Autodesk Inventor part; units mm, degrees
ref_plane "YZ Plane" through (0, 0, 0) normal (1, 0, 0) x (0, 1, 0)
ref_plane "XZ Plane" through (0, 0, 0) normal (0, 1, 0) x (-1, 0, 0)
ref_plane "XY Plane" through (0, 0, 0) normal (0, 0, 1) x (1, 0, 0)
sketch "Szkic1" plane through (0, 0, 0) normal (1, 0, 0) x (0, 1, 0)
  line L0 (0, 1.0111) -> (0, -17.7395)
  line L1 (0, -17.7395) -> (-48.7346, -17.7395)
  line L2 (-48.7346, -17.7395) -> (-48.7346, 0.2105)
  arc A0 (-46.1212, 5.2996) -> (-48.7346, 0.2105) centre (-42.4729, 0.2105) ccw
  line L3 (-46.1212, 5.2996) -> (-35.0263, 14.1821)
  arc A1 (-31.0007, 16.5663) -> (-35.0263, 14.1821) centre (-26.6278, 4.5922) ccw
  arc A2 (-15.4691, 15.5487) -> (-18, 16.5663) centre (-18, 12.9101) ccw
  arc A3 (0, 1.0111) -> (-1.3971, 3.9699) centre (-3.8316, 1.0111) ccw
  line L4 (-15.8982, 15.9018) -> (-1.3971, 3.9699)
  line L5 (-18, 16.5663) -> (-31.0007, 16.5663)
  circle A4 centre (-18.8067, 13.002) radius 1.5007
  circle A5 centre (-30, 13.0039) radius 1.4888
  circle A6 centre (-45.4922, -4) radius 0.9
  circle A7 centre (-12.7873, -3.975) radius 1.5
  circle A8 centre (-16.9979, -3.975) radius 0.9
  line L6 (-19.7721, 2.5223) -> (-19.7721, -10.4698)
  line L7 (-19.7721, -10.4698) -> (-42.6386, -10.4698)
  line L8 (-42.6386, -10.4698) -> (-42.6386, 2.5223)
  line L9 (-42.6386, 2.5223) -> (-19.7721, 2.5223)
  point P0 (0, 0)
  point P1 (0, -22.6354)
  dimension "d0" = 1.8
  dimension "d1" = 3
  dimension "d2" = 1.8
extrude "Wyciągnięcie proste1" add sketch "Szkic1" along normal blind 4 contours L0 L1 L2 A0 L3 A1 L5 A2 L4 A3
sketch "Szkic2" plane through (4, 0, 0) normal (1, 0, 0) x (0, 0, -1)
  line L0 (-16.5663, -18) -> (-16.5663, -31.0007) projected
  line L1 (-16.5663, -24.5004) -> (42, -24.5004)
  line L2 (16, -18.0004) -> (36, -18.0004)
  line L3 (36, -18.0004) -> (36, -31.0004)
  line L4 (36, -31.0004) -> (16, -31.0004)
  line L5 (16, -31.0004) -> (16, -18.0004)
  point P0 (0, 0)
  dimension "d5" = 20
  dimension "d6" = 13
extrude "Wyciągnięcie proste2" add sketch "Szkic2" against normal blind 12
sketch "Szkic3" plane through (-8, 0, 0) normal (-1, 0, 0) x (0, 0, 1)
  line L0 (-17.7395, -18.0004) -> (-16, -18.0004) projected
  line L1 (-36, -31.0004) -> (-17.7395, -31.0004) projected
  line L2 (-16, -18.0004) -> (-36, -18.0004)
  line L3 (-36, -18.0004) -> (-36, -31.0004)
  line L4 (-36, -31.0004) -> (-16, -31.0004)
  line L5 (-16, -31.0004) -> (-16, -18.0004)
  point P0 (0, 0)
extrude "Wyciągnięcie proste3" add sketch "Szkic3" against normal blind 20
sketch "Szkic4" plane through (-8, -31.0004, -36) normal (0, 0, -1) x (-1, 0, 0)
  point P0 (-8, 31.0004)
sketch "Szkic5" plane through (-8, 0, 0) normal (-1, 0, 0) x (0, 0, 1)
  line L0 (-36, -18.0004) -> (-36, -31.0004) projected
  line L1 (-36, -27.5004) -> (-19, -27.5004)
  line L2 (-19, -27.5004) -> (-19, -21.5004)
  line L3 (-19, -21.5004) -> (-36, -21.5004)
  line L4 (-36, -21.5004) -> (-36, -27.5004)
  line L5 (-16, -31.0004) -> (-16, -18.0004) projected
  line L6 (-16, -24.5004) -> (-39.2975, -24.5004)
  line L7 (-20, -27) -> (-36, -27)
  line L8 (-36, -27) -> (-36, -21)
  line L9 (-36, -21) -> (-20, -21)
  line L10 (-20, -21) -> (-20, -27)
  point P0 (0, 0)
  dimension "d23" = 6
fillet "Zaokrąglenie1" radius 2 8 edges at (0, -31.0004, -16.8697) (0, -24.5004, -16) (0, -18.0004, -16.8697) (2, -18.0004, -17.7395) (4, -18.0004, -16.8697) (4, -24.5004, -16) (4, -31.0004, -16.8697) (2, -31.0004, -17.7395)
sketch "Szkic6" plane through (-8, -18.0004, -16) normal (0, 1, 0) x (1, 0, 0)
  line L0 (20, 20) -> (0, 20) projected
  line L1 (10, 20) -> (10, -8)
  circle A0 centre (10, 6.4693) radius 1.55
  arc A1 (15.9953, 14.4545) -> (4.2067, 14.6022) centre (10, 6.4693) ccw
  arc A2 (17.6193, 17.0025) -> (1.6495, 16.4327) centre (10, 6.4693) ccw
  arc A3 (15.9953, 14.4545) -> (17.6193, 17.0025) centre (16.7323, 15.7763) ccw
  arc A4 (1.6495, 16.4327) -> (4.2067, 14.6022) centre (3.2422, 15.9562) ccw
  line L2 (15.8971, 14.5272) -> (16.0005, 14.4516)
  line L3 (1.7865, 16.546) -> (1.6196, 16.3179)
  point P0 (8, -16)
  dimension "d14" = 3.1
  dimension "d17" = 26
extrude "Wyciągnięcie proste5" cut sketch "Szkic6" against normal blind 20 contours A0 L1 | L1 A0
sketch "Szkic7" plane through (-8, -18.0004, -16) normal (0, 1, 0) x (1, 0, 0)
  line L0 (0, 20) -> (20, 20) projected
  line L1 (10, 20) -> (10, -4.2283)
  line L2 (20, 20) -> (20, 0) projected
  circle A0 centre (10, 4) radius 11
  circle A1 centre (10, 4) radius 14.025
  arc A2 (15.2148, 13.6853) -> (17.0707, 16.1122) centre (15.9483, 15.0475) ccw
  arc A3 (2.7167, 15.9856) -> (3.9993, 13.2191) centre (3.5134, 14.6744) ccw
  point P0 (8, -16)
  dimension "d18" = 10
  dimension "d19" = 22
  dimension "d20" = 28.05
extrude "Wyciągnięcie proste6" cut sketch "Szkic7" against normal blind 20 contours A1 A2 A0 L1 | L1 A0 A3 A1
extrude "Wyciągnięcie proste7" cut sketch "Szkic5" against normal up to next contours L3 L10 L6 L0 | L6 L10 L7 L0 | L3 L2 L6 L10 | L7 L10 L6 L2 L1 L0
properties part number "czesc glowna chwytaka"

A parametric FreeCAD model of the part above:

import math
import FreeCAD as App
import Part
import Sketcher

V = App.Vector
Q = App.Units.Quantity


def edges_at(feature, points):
    """Names of the edges that pass closest to the given points."""
    edges = feature.Shape.Edges
    near = lambda p: min(range(len(edges)), key=lambda i: edges[i].distToShape(Part.Vertex(*p))[0])
    return sorted({f"Edge{near(p) + 1}" for p in points})


def add_polygon(sketch, points):
    """Adds a closed chain of lines whose ends are joined by coincident constraints."""
    first, n = sketch.GeometryCount, len(points)
    for a, b in zip(points, points[1:] + points[:1]):
        sketch.addGeometry(Part.LineSegment(App.Vector(*a, 0), App.Vector(*b, 0)), False)
    for i in range(n):
        sketch.addConstraint(Sketcher.Constraint("Coincident", first + i, 2, first + (i + 1) % n, 1))

doc = App.newDocument("Part")
params = doc.addObject("Spreadsheet::Sheet", "Params")
for row, (alias, value) in enumerate([
    ("sketch1_diameter", "3 mm"),
    ("sketch1_diameter2", "1.8 mm"),
    ("sketch1_height", "17.95 mm"),
    ("sketch1_height2", "9.59 mm"),
    ("pad1_length", "4 mm"),
    ("sketch2_width", "13 mm"),
    ("sketch2_height", "20 mm"),
    ("pad2_length", "12 mm"),
    ("sketch3_width", "13 mm"),
    ("sketch3_height", "20 mm"),
    ("pad3_length", "20 mm"),
    ("fillet_radius", "2 mm"),
    ("sketch4_diameter", "3.1 mm"),
    ("pocket1_length", "20 mm"),
    ("sketch5_radius", "11 mm"),
    ("pocket2_length", "20 mm"),
    ("sketch6_width", "6 mm"),
    ("sketch6_height", "17 mm"),
], start=1):
    params.set(f"A{row}", alias)
    params.set(f"B{row}", "=" + value)
    params.setAlias(f"B{row}", alias)

body = doc.addObject("PartDesign::Body", "Body")

# Sketch on YZ plane
sketch1 = body.newObject("Sketcher::SketchObject", "Sketch")
sketch1.AttachmentSupport = (doc.getObject("YZ_Plane"), [""])
sketch1.MapMode = "FlatFace"
sketch1.addGeometry(Part.LineSegment(V(0, -17.7395, 0), V(0, 1.0111, 0)), False)  # 0
sketch1.addGeometry(Part.ArcOfCircle(Part.Circle(V(-3.8316, 1.0111, 0), V(0, 0, 1), 3.8316), math.radians(0), math.radians(50.552459)), False)  # 1
sketch1.addGeometry(Part.LineSegment(V(-1.3971, 3.9699, 0), V(-15.8982, 15.9018, 0)), False)  # 2
sketch1.addGeometry(Part.ArcOfCircle(Part.Circle(V(-18, 12.9101, 0), V(0, 0, 1), 3.656182), math.radians(54.910282), math.radians(90)), False)  # 3
sketch1.addGeometry(Part.LineSegment(V(-18, 16.5663, 0), V(-31.0007, 16.5663, 0)), False)  # 4
sketch1.addGeometry(Part.ArcOfCircle(Part.Circle(V(-26.6278, 4.5922, 0), V(0, 0, 1), 12.747601), math.radians(110.062019), math.radians(131.210745)), False)  # 5
sketch1.addGeometry(Part.LineSegment(V(-35.0263, 14.1821, 0), V(-46.1212, 5.2996, 0)), False)  # 6
sketch1.addGeometry(Part.ArcOfCircle(Part.Circle(V(-42.4729, 0.2105, 0), V(0, 0, 1), 6.261712), math.radians(125.636175), math.radians(180)), False)  # 7
sketch1.addGeometry(Part.LineSegment(V(-48.7346, 0.2105, 0), V(-48.7346, -17.7395, 0)), False)  # 8
sketch1.addGeometry(Part.LineSegment(V(-48.7346, -17.7395, 0), V(0, -17.7395, 0)), False)  # 9
sketch1.addGeometry(Part.Circle(V(-45.4922, -4, 0), V(0, 0, 1), 0.9), False)  # 10
add_polygon(sketch1, [(-42.6386, 2.5223), (-19.7721, 2.5223), (-19.7721, -10.4698), (-42.6386, -10.4698)])  # lines 11-14
sketch1.addGeometry(Part.Circle(V(-16.9979, -3.975, 0), V(0, 0, 1), 0.9), False)  # 15
sketch1.addGeometry(Part.Circle(V(-12.7873, -3.975, 0), V(0, 0, 1), 1.5), False)  # 16
sketch1.addGeometry(Part.Circle(V(-30, 13.0039, 0), V(0, 0, 1), 1.4888), False)  # 17
sketch1.addGeometry(Part.Circle(V(-18.8067, 13.002, 0), V(0, 0, 1), 1.5007), False)  # 18
sketch1.addConstraint([
    Sketcher.Constraint("Tangent", 0, 2, 1, 1),
    Sketcher.Constraint("Tangent", 1, 2, 2, 1),
    Sketcher.Constraint("Coincident", 2, 2, 3, 1),
    Sketcher.Constraint("Tangent", 3, 2, 4, 1),
    Sketcher.Constraint("Coincident", 4, 2, 5, 1),
    Sketcher.Constraint("Coincident", 5, 2, 6, 1),
    Sketcher.Constraint("Coincident", 6, 2, 7, 1),
    Sketcher.Constraint("Tangent", 7, 2, 8, 1),
    Sketcher.Constraint("Coincident", 8, 2, 9, 1),
    Sketcher.Constraint("Coincident", 9, 2, 0, 1),
    Sketcher.Constraint("Vertical", 0),
    Sketcher.Constraint("Horizontal", 4),
    Sketcher.Constraint("Vertical", 8),
    Sketcher.Constraint("Horizontal", 9),
    Sketcher.Constraint("Horizontal", 11),
    Sketcher.Constraint("Vertical", 12),
    Sketcher.Constraint("Horizontal", 13),
    Sketcher.Constraint("Vertical", 14),
    Sketcher.Constraint("Equal", 10, 15),
    Sketcher.Constraint("PointOnObject", 0, 2, -2),
    Sketcher.Constraint("Horizontal", 15, 3, 16, 3),
    Sketcher.Constraint("Diameter", 16, Q("3 mm")),
    Sketcher.Constraint("Diameter", 10, Q("1.8 mm")),
    Sketcher.Constraint("DistanceX", 3, 3, -1, 1, Q("18 mm")),
    Sketcher.Constraint("DistanceY", 10, 3, -1, 1, Q("4 mm")),
    Sketcher.Constraint("DistanceX", 17, 3, -1, 1, Q("30 mm")),
    Sketcher.Constraint("Diameter", 17, Q("2.9776 mm")),
    Sketcher.Constraint("Diameter", 18, Q("3.0014 mm")),
    Sketcher.Constraint("DistanceY", 8, 2, 8, 1, Q("17.95 mm")),
    Sketcher.Constraint("Angle", 6, Q("-141.3195 deg")),
    Sketcher.Constraint("Radius", 1, Q("3.8316 mm")),
    Sketcher.Constraint("Radius", 3, Q("3.6562 mm")),
    Sketcher.Constraint("Radius", 5, Q("12.7476 mm")),
    Sketcher.Constraint("Radius", 7, Q("6.2617 mm")),
    Sketcher.Constraint("DistanceY", 12, 2, 12, 1, Q("12.992 mm")),
    Sketcher.Constraint("DistanceY", -1, 1, 3, 3, Q("12.91 mm")),
    Sketcher.Constraint("DistanceY", -1, 1, 1, 2, Q("3.97 mm")),
    Sketcher.Constraint("DistanceX", 5, 3, 15, 3, Q("9.63 mm")),
    Sketcher.Constraint("DistanceY", 5, 3, 5, 2, Q("9.59 mm")),
    Sketcher.Constraint("DistanceY", 18, 3, 5, 2, Q("1.18 mm")),
    Sketcher.Constraint("DistanceY", 11, 2, 5, 3, Q("2.07 mm")),
    Sketcher.Constraint("Distance", 2, Q("18.779 mm")),
    Sketcher.Constraint("DistanceX", 4, 2, 4, 1, Q("13.0007 mm")),
    Sketcher.Constraint("DistanceX", 9, 1, 9, 2, Q("48.7346 mm")),
    Sketcher.Constraint("DistanceX", 11, 1, 11, 2, Q("22.8665 mm")),
    Sketcher.Constraint("DistanceY", 0, 1, 0, 2, Q("18.7506 mm")),
    Sketcher.Constraint("DistanceX", 15, 3, -1, 1, Q("16.998 mm")),
    Sketcher.Constraint("DistanceY", 15, 3, -1, 1, Q("3.975 mm")),
    Sketcher.Constraint("DistanceY", -1, 1, 17, 3, Q("13.004 mm")),
    Sketcher.Constraint("DistanceX", 11, 2, -1, 1, Q("19.772 mm")),
    Sketcher.Constraint("DistanceX", 5, 3, 18, 3, Q("7.821 mm")),
    Sketcher.Constraint("DistanceX", 6, 2, 10, 3, Q("0.629 mm")),
    Sketcher.Constraint("DistanceX", 16, 3, -1, 1, Q("12.7873 mm")),
])
sketch1.setExpression("Constraints[25]", "Params.sketch1_diameter")
sketch1.setExpression("Constraints[26]", "Params.sketch1_diameter2")
sketch1.setExpression("Constraints[32]", "Params.sketch1_height")
sketch1.setExpression("Constraints[42]", "Params.sketch1_height2")
pad1 = body.newObject("PartDesign::Pad", "Pad")
pad1.Profile = sketch1
pad1.setExpression("Length", "Params.pad1_length")

# Sketch on YZ plane
sketch2 = body.newObject("Sketcher::SketchObject", "Sketch001")
sketch2.AttachmentSupport = (doc.getObject("YZ_Plane"), [""])
sketch2.MapMode = "FlatFace"
sketch2.AttachmentOffset = App.Placement(V(0, 0, 4), App.Rotation())
add_polygon(sketch2, [(-18.0004, -16), (-31.0004, -16), (-31.0004, -36), (-18.0004, -36)])  # lines 0-3
sketch2.addConstraint([
    Sketcher.Constraint("Horizontal", 0),
    Sketcher.Constraint("Vertical", 1),
    Sketcher.Constraint("Horizontal", 2),
    Sketcher.Constraint("Vertical", 3),
    Sketcher.Constraint("DistanceX", 0, 2, 0, 1, Q("13 mm")),
    Sketcher.Constraint("DistanceY", 1, 2, 1, 1, Q("20 mm")),
    Sketcher.Constraint("DistanceY", 0, 2, -1, 1, Q("16 mm")),
    Sketcher.Constraint("DistanceX", 0, 2, -1, 1, Q("31.0004 mm")),
])
sketch2.setExpression("Constraints[8]", "Params.sketch2_width")
sketch2.setExpression("Constraints[9]", "Params.sketch2_height")
pad2 = body.newObject("PartDesign::Pad", "Pad001")
pad2.Profile = sketch2
pad2.setExpression("Length", "Params.pad2_length")
pad2.Reversed = True

# Sketch on YZ plane
sketch3 = body.newObject("Sketcher::SketchObject", "Sketch002")
sketch3.AttachmentSupport = (doc.getObject("YZ_Plane"), [""])
sketch3.MapMode = "FlatFace"
sketch3.AttachmentOffset = App.Placement(V(0, 0, -8), App.Rotation())
add_polygon(sketch3, [(-18.0004, -16), (-18.0004, -36), (-31.0004, -36), (-31.0004, -16)])  # lines 0-3
sketch3.addConstraint([
    Sketcher.Constraint("Vertical", 0),
    Sketcher.Constraint("Horizontal", 1),
    Sketcher.Constraint("Vertical", 2),
    Sketcher.Constraint("Horizontal", 3),
    Sketcher.Constraint("DistanceX", 1, 2, 1, 1, Q("13 mm")),
    Sketcher.Constraint("DistanceY", 0, 2, 0, 1, Q("20 mm")),
    Sketcher.Constraint("DistanceY", 0, 2, -1, 1, Q("36 mm")),
    Sketcher.Constraint("DistanceX", 0, 2, -1, 1, Q("18.0004 mm")),
])
sketch3.setExpression("Constraints[8]", "Params.sketch3_width")
sketch3.setExpression("Constraints[9]", "Params.sketch3_height")
pad3 = body.newObject("PartDesign::Pad", "Pad002")
pad3.Profile = sketch3
pad3.setExpression("Length", "Params.pad3_length")
doc.recompute()

fillet = body.newObject("PartDesign::Fillet", "Fillet")
fillet.Base = (pad3, edges_at(pad3, [
    (0, -31, -16.87),
    (0, -24.5, -16),
    (0, -18, -16.87),
    (2, -18, -17.739),
    (4, -18, -16.87),
    (4, -24.5, -16),
    (4, -31, -16.87),
    (2, -31, -17.739),
]))
fillet.setExpression("Radius", "Params.fillet_radius")

# Sketch on XZ plane
sketch4 = body.newObject("Sketcher::SketchObject", "Sketch003")
sketch4.AttachmentSupport = (doc.getObject("XZ_Plane"), [""])
sketch4.MapMode = "FlatFace"
sketch4.AttachmentOffset = App.Placement(V(0, 0, 18.0004), App.Rotation())
sketch4.addGeometry(Part.Circle(V(2, -22.4693, 0), V(0, 0, 1), 1.55), False)
sketch4.addConstraint([
    Sketcher.Constraint("Diameter", 0, Q("3.1 mm")),
    Sketcher.Constraint("DistanceX", -1, 1, 0, 3, Q("2 mm")),
    Sketcher.Constraint("DistanceY", 0, 3, -1, 1, Q("22.4693 mm")),
])
sketch4.setExpression("Constraints[0]", "Params.sketch4_diameter")
pocket1 = body.newObject("PartDesign::Pocket", "Pocket")
pocket1.Profile = sketch4
pocket1.setExpression("Length", "Params.pocket1_length")
pocket1.Reversed = True

# Sketch on XZ plane
sketch5 = body.newObject("Sketcher::SketchObject", "Sketch004")
sketch5.AttachmentSupport = (doc.getObject("XZ_Plane"), [""])
sketch5.MapMode = "FlatFace"
sketch5.AttachmentOffset = App.Placement(V(0, 0, 18.0004), App.Rotation())
sketch5.addGeometry([
    Part.ArcOfCircle(Part.Circle(V(2, -20, 0), V(0, 0, 1), 14.025), math.radians(-121.285831), math.radians(-59.725037)),
    Part.ArcOfCircle(Part.Circle(V(-4.4866, -30.6744, 0), V(0, 0, 1), 1.534267), math.radians(71.536709), math.radians(238.71666)),
    Part.ArcOfCircle(Part.Circle(V(2, -20, 0), V(0, 0, 1), 11), math.radians(-123.06005), math.radians(-61.700902)),
    Part.ArcOfCircle(Part.Circle(V(7.9483, -31.0475, 0), V(0, 0, 1), 1.54713), math.radians(-43.488775), math.radians(118.301007)),
], False)
sketch5.addConstraint([
    Sketcher.Constraint("Tangent", 0, 1, 1, 2),
    Sketcher.Constraint("Coincident", 1, 1, 2, 1),
    Sketcher.Constraint("Tangent", 2, 2, 3, 2),
    Sketcher.Constraint("Coincident", 3, 1, 0, 2),
    Sketcher.Constraint("Coincident", 2, 3, 0, 3),
    Sketcher.Constraint("Radius", 2, Q("11 mm")),
    Sketcher.Constraint("Radius", 0, Q("14.025 mm")),
    Sketcher.Constraint("DistanceX", -1, 1, 0, 3, Q("2 mm")),
    Sketcher.Constraint("DistanceY", 0, 3, -1, 1, Q("20 mm")),
    Sketcher.Constraint("Radius", 1, Q("1.5343 mm")),
    Sketcher.Constraint("Radius", 3, Q("1.5471 mm")),
    Sketcher.Constraint("DistanceY", 1, 1, -1, 1, Q("29.219 mm")),
    Sketcher.Constraint("DistanceX", 1, 3, 3, 3, Q("12.435 mm")),
])
sketch5.setExpression("Constraints[5]", "Params.sketch5_radius")
pocket2 = body.newObject("PartDesign::Pocket", "Pocket001")
pocket2.Profile = sketch5
pocket2.setExpression("Length", "Params.pocket2_length")
pocket2.Reversed = True

# Sketch on YZ plane
sketch6 = body.newObject("Sketcher::SketchObject", "Sketch005")
sketch6.AttachmentSupport = (doc.getObject("YZ_Plane"), [""])
sketch6.MapMode = "FlatFace"
sketch6.AttachmentOffset = App.Placement(V(0, 0, -8), App.Rotation())
add_polygon(sketch6, [(-21.5004, -36), (-27.5004, -36), (-27.5004, -19), (-21.5004, -19)])  # lines 0-3
sketch6.addConstraint([
    Sketcher.Constraint("Horizontal", 0),
    Sketcher.Constraint("Vertical", 1),
    Sketcher.Constraint("Horizontal", 2),
    Sketcher.Constraint("Vertical", 3),
    Sketcher.Constraint("DistanceX", 0, 2, 0, 1, Q("6 mm")),
    Sketcher.Constraint("DistanceY", 1, 1, 1, 2, Q("17 mm")),
    Sketcher.Constraint("DistanceY", 0, 2, -1, 1, Q("36 mm")),
    Sketcher.Constraint("DistanceX", 0, 2, -1, 1, Q("27.5004 mm")),
])
sketch6.setExpression("Constraints[8]", "Params.sketch6_width")
sketch6.setExpression("Constraints[9]", "Params.sketch6_height")
pocket3 = body.newObject("PartDesign::Pocket", "Pocket002")
pocket3.Profile = sketch6
pocket3.Type = "UpToFirst"
pocket3.Reversed = True

doc.recompute()
